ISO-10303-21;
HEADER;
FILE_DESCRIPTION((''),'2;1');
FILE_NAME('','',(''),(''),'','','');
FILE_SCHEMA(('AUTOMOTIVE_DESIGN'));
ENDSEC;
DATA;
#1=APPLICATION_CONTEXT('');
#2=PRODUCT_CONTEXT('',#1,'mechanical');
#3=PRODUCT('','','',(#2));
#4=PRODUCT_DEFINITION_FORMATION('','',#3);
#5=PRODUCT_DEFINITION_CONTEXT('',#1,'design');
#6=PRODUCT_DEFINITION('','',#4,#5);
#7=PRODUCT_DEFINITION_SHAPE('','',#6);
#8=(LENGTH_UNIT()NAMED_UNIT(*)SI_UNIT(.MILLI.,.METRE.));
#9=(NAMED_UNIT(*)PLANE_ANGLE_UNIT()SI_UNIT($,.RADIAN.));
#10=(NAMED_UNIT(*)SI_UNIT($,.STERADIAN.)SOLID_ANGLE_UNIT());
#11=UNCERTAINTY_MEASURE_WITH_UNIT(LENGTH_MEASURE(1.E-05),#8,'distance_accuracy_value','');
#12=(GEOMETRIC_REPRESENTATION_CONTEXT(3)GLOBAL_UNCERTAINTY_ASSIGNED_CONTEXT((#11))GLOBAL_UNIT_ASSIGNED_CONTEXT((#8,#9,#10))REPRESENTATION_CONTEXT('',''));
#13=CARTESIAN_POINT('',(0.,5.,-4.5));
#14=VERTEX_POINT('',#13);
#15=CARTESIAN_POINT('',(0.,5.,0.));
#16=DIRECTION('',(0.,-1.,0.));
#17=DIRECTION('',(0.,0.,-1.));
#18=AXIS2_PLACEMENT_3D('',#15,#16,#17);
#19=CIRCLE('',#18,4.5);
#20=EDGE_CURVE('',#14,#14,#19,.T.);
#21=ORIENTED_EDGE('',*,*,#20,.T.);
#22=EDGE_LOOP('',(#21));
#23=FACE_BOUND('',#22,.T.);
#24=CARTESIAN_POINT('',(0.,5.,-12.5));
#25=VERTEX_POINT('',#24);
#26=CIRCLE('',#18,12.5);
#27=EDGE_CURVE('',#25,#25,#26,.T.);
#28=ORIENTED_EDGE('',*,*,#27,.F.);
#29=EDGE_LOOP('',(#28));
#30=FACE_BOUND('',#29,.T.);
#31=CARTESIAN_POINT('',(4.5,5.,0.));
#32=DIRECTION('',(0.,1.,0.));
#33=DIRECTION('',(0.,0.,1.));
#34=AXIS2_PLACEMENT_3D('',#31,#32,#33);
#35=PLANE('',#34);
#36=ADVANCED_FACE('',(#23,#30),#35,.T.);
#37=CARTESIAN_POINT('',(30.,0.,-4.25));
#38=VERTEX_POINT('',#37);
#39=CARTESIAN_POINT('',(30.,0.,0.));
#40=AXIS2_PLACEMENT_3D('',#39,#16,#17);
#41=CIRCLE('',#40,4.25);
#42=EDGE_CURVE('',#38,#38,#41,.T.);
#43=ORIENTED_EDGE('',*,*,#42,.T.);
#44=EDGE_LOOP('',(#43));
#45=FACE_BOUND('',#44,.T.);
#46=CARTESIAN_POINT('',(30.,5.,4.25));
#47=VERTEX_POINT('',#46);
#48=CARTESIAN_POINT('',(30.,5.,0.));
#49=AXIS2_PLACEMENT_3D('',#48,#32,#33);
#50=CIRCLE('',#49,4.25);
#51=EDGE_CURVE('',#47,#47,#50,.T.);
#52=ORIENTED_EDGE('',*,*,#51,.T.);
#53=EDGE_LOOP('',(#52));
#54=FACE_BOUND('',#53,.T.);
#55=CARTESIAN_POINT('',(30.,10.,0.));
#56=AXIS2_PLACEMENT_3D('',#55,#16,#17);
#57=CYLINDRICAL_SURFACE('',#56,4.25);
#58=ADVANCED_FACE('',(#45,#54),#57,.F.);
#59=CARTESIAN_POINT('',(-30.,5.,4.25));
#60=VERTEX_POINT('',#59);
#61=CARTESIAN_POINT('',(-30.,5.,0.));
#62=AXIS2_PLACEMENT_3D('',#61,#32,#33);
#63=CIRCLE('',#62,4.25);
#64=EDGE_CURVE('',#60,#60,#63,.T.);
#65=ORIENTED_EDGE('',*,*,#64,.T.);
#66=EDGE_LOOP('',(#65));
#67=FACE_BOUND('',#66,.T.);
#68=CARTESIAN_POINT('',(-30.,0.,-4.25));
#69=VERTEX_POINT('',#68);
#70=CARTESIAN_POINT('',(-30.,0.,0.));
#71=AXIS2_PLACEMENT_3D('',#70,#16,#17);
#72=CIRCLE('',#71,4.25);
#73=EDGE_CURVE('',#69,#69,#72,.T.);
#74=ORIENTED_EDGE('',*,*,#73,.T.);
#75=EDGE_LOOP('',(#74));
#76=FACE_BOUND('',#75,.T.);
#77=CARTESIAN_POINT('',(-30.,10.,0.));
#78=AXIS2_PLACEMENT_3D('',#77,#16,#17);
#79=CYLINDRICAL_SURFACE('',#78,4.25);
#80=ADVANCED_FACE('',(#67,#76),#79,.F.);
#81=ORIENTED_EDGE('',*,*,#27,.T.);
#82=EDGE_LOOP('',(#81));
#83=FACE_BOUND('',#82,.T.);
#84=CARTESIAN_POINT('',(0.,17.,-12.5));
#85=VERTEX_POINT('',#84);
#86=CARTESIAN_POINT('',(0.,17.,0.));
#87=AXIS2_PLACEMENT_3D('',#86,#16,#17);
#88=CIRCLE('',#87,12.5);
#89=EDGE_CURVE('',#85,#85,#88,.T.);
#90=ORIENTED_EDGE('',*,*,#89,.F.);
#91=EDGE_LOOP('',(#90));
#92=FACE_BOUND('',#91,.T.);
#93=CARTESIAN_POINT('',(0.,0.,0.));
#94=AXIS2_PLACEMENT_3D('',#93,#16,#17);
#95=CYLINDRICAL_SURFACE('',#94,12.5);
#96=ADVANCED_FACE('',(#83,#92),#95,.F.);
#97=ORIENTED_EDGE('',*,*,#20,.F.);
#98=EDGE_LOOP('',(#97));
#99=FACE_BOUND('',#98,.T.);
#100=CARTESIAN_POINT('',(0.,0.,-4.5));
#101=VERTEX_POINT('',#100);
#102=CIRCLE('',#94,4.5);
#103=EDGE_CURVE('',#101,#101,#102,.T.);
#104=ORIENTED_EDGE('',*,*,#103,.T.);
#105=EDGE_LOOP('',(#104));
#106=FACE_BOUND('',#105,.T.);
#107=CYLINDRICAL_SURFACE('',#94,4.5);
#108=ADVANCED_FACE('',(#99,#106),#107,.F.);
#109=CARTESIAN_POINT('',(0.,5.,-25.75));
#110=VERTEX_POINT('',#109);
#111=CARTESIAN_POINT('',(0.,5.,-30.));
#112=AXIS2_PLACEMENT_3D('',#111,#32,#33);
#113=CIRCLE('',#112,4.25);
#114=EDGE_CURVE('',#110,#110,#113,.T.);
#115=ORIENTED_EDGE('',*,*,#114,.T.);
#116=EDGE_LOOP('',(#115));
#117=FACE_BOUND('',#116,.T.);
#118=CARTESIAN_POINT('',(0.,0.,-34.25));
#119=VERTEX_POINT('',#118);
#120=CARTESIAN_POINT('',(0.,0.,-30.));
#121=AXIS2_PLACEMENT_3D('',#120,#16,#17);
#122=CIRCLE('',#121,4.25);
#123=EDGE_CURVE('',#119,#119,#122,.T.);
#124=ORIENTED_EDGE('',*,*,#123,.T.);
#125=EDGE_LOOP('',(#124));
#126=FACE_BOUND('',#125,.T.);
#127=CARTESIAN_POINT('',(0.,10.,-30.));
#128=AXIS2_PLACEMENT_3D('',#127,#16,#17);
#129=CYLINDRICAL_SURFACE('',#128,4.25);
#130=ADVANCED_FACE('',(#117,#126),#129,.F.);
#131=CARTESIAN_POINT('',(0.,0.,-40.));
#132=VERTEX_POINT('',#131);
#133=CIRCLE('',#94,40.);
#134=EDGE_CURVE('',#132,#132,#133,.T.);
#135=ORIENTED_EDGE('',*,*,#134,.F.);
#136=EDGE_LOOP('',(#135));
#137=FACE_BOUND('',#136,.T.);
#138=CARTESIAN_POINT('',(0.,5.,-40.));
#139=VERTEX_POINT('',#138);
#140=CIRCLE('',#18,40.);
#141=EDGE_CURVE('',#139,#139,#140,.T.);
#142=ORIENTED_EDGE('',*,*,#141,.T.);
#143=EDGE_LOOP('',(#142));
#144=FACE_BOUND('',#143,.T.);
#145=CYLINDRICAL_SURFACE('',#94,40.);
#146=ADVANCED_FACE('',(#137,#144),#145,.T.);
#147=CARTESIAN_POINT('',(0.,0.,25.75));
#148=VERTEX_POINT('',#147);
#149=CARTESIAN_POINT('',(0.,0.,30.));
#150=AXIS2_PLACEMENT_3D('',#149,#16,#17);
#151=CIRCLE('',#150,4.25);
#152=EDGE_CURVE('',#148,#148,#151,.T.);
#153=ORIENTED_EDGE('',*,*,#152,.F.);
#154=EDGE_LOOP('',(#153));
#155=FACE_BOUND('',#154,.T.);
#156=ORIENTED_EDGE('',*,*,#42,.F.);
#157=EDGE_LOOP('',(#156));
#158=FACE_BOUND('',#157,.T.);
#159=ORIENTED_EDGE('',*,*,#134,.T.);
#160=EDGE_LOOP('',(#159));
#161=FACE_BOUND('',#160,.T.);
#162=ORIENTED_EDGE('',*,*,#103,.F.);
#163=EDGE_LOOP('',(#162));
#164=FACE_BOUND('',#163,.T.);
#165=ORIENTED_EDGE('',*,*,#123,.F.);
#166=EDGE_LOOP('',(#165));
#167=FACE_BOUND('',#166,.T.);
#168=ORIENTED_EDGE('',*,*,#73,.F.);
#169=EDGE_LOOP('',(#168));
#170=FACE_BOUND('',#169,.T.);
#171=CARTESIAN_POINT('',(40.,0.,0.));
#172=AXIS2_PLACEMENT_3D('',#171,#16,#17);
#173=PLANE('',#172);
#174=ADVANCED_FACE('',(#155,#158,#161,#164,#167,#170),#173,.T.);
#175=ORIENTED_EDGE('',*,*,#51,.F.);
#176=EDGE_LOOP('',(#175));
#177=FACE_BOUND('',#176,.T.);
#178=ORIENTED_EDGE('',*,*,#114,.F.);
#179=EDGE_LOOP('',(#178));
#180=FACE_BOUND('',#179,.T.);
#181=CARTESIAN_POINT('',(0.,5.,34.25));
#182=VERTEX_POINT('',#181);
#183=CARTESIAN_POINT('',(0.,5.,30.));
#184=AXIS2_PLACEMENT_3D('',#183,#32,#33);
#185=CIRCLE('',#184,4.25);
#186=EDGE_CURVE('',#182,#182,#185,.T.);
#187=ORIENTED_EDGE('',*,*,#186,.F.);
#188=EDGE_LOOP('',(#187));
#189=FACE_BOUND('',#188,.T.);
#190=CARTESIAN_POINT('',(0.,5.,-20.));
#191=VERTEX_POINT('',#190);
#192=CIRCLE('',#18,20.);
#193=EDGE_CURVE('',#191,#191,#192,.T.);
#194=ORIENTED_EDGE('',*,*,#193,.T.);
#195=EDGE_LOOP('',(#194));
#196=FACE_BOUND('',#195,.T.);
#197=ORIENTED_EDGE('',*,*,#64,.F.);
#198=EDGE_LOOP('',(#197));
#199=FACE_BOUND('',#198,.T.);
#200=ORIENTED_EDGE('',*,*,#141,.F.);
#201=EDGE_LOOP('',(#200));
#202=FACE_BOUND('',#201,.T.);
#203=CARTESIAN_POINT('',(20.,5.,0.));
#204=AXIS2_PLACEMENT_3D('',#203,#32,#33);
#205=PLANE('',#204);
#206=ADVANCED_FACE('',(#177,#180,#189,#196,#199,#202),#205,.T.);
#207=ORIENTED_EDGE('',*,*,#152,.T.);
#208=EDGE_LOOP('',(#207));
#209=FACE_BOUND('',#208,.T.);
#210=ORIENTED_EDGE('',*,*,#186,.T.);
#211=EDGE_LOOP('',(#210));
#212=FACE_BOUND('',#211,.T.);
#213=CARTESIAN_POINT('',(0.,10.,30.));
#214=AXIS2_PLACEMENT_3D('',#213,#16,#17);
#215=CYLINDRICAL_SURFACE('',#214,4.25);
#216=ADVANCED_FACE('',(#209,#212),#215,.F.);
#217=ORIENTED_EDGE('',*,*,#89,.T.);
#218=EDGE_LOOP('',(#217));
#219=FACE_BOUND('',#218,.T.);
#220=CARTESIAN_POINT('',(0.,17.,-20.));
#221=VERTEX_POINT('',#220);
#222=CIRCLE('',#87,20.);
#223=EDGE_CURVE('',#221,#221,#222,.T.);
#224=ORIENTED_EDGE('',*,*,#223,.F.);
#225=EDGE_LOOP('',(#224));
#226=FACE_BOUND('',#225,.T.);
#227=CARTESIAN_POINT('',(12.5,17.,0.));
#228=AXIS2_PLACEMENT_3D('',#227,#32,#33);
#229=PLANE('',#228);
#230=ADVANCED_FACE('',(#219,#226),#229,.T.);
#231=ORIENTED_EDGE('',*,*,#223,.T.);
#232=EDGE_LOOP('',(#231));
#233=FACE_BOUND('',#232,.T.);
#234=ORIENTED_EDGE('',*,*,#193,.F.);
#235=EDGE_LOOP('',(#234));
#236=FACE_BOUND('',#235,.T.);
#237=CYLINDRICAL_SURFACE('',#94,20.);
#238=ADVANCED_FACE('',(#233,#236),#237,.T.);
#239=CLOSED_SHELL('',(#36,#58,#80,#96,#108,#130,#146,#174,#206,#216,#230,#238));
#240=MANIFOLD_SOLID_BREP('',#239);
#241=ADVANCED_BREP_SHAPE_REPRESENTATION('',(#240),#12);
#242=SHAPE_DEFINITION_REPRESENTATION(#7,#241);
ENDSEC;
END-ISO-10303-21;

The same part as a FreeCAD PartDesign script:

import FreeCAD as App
import Part
import Sketcher
Q = App.Units.Quantity

doc = App.newDocument("Part")
params = doc.addObject("Spreadsheet::Sheet", "Params")
for row, (alias, value) in enumerate([
    ("sketch1_width", "8 mm"),
    ("sketch1_width2", "20 mm"),
    ("sketch1_height", "5 mm"),
    ("sketch1_height2", "12 mm"),
    ("sketch1_width3", "35.5 mm"),
    ("revolution_angle", "360 deg"),
    ("sketch2_diameter", "8.5 mm"),
    ("pocket1_length", "10 mm"),
], start=1):
    params.set(f"A{row}", alias)
    params.set(f"B{row}", "=" + value)
    params.setAlias(f"B{row}", alias)

body = doc.addObject("PartDesign::Body", "Body")

sketch1 = body.newObject("Sketcher::SketchObject", "Sketch")
sketch1.AttachmentSupport = (doc.getObject("XY_Plane"), [""])
sketch1.MapMode = "FlatFace"
sketch1.addGeometry(Part.LineSegment(App.Vector(12, 5, 0), App.Vector(4, 5, 0)), False)
sketch1.addGeometry(Part.LineSegment(App.Vector(4, 5, 0), App.Vector(4, 0, 0)), False)
sketch1.addGeometry(Part.LineSegment(App.Vector(4, 0, 0), App.Vector(40, 0, 0)), False)
sketch1.addGeometry(Part.LineSegment(App.Vector(40, 0, 0), App.Vector(40, 5, 0)), False)
sketch1.addGeometry(Part.LineSegment(App.Vector(40, 5, 0), App.Vector(20, 5, 0)), False)
sketch1.addGeometry(Part.LineSegment(App.Vector(20, 5, 0), App.Vector(20, 17, 0)), False)
sketch1.addGeometry(Part.LineSegment(App.Vector(20, 17, 0), App.Vector(12, 17, 0)), False)
sketch1.addGeometry(Part.LineSegment(App.Vector(12, 17, 0), App.Vector(12, 5, 0)), False)
sketch1.addConstraint(Sketcher.Constraint("Coincident", 0, 2, 1, 1))
sketch1.addConstraint(Sketcher.Constraint("Coincident", 1, 2, 2, 1))
sketch1.addConstraint(Sketcher.Constraint("Coincident", 2, 2, 3, 1))
sketch1.addConstraint(Sketcher.Constraint("Coincident", 3, 2, 4, 1))
sketch1.addConstraint(Sketcher.Constraint("Coincident", 4, 2, 5, 1))
sketch1.addConstraint(Sketcher.Constraint("Coincident", 5, 2, 6, 1))
sketch1.addConstraint(Sketcher.Constraint("Coincident", 6, 2, 7, 1))
sketch1.addConstraint(Sketcher.Constraint("Coincident", 7, 2, 0, 1))
sketch1.addConstraint(Sketcher.Constraint("Horizontal", 0))
sketch1.addConstraint(Sketcher.Constraint("Vertical", 1))
sketch1.addConstraint(Sketcher.Constraint("Horizontal", 2))
sketch1.addConstraint(Sketcher.Constraint("Vertical", 3))
sketch1.addConstraint(Sketcher.Constraint("Horizontal", 4))
sketch1.addConstraint(Sketcher.Constraint("Vertical", 5))
sketch1.addConstraint(Sketcher.Constraint("Horizontal", 6))
sketch1.addConstraint(Sketcher.Constraint("Vertical", 7))
sketch1.addConstraint(Sketcher.Constraint("PointOnObject", 1, 2, -1))
sketch1.addConstraint(Sketcher.Constraint("Horizontal", 0, 2, 3, 2))
sketch1.addConstraint(Sketcher.Constraint("DistanceX", 0, 2, 0, 1, Q("8 mm")))
sketch1.addConstraint(Sketcher.Constraint("DistanceX", 4, 2, 4, 1, Q("20 mm")))
sketch1.addConstraint(Sketcher.Constraint("DistanceY", 1, 2, 1, 1, Q("5 mm")))
sketch1.addConstraint(Sketcher.Constraint("DistanceY", 5, 1, 5, 2, Q("12 mm")))
sketch1.addConstraint(Sketcher.Constraint("DistanceX", 2, 1, 2, 2, Q("35.5 mm")))
sketch1.addConstraint(Sketcher.Constraint("DistanceX", -1, 1, 2, 2, Q("40 mm")))
sketch1.setExpression("Constraints[18]", "Params.sketch1_width")
sketch1.setExpression("Constraints[19]", "Params.sketch1_width2")
sketch1.setExpression("Constraints[20]", "Params.sketch1_height")
sketch1.setExpression("Constraints[21]", "Params.sketch1_height2")
sketch1.setExpression("Constraints[22]", "Params.sketch1_width3")
revolution = body.newObject("PartDesign::Revolution", "Revolution")
revolution.Profile = sketch1
revolution.ReferenceAxis = (sketch1, ["V_Axis"])
revolution.setExpression("Angle", "Params.revolution_angle")

sketch2 = body.newObject("Sketcher::SketchObject", "Sketch001")
sketch2.AttachmentSupport = (doc.getObject("XZ_Plane"), [""])
sketch2.MapMode = "FlatFace"
sketch2.addGeometry(Part.Circle(App.Vector(0, 30, 0), App.Vector(0, 0, 1), 4.2), False)
sketch2.addGeometry(Part.Circle(App.Vector(30, 0, 0), App.Vector(0, 0, 1), 4.2), False)
sketch2.addGeometry(Part.Circle(App.Vector(0, -30, 0), App.Vector(0, 0, 1), 4.2), False)
sketch2.addGeometry(Part.Circle(App.Vector(-30, 0, 0), App.Vector(0, 0, 1), 4.2), False)
sketch2.addConstraint(Sketcher.Constraint("Equal", 0, 1))
sketch2.addConstraint(Sketcher.Constraint("Equal", 1, 2))
sketch2.addConstraint(Sketcher.Constraint("Equal", 2, 3))
sketch2.addConstraint(Sketcher.Constraint("Symmetric", 0, 3, 2, 3, -1, 1))
sketch2.addConstraint(Sketcher.Constraint("Symmetric", 1, 3, 3, 3, -1, 1))
sketch2.addConstraint(Sketcher.Constraint("PointOnObject", 0, 3, -2))
sketch2.addConstraint(Sketcher.Constraint("PointOnObject", 1, 3, -1))
sketch2.addConstraint(Sketcher.Constraint("Diameter", 0, Q("8.5 mm")))
sketch2.addConstraint(Sketcher.Constraint("DistanceY", -1, 1, 0, 3, Q("30 mm")))
sketch2.addConstraint(Sketcher.Constraint("DistanceX", -1, 1, 1, 3, Q("30 mm")))
sketch2.setExpression("Constraints[7]", "Params.sketch2_diameter")
pocket1 = body.newObject("PartDesign::Pocket", "Pocket")
pocket1.Profile = sketch2
pocket1.setExpression("Length", "Params.pocket1_length")

doc.recompute()
